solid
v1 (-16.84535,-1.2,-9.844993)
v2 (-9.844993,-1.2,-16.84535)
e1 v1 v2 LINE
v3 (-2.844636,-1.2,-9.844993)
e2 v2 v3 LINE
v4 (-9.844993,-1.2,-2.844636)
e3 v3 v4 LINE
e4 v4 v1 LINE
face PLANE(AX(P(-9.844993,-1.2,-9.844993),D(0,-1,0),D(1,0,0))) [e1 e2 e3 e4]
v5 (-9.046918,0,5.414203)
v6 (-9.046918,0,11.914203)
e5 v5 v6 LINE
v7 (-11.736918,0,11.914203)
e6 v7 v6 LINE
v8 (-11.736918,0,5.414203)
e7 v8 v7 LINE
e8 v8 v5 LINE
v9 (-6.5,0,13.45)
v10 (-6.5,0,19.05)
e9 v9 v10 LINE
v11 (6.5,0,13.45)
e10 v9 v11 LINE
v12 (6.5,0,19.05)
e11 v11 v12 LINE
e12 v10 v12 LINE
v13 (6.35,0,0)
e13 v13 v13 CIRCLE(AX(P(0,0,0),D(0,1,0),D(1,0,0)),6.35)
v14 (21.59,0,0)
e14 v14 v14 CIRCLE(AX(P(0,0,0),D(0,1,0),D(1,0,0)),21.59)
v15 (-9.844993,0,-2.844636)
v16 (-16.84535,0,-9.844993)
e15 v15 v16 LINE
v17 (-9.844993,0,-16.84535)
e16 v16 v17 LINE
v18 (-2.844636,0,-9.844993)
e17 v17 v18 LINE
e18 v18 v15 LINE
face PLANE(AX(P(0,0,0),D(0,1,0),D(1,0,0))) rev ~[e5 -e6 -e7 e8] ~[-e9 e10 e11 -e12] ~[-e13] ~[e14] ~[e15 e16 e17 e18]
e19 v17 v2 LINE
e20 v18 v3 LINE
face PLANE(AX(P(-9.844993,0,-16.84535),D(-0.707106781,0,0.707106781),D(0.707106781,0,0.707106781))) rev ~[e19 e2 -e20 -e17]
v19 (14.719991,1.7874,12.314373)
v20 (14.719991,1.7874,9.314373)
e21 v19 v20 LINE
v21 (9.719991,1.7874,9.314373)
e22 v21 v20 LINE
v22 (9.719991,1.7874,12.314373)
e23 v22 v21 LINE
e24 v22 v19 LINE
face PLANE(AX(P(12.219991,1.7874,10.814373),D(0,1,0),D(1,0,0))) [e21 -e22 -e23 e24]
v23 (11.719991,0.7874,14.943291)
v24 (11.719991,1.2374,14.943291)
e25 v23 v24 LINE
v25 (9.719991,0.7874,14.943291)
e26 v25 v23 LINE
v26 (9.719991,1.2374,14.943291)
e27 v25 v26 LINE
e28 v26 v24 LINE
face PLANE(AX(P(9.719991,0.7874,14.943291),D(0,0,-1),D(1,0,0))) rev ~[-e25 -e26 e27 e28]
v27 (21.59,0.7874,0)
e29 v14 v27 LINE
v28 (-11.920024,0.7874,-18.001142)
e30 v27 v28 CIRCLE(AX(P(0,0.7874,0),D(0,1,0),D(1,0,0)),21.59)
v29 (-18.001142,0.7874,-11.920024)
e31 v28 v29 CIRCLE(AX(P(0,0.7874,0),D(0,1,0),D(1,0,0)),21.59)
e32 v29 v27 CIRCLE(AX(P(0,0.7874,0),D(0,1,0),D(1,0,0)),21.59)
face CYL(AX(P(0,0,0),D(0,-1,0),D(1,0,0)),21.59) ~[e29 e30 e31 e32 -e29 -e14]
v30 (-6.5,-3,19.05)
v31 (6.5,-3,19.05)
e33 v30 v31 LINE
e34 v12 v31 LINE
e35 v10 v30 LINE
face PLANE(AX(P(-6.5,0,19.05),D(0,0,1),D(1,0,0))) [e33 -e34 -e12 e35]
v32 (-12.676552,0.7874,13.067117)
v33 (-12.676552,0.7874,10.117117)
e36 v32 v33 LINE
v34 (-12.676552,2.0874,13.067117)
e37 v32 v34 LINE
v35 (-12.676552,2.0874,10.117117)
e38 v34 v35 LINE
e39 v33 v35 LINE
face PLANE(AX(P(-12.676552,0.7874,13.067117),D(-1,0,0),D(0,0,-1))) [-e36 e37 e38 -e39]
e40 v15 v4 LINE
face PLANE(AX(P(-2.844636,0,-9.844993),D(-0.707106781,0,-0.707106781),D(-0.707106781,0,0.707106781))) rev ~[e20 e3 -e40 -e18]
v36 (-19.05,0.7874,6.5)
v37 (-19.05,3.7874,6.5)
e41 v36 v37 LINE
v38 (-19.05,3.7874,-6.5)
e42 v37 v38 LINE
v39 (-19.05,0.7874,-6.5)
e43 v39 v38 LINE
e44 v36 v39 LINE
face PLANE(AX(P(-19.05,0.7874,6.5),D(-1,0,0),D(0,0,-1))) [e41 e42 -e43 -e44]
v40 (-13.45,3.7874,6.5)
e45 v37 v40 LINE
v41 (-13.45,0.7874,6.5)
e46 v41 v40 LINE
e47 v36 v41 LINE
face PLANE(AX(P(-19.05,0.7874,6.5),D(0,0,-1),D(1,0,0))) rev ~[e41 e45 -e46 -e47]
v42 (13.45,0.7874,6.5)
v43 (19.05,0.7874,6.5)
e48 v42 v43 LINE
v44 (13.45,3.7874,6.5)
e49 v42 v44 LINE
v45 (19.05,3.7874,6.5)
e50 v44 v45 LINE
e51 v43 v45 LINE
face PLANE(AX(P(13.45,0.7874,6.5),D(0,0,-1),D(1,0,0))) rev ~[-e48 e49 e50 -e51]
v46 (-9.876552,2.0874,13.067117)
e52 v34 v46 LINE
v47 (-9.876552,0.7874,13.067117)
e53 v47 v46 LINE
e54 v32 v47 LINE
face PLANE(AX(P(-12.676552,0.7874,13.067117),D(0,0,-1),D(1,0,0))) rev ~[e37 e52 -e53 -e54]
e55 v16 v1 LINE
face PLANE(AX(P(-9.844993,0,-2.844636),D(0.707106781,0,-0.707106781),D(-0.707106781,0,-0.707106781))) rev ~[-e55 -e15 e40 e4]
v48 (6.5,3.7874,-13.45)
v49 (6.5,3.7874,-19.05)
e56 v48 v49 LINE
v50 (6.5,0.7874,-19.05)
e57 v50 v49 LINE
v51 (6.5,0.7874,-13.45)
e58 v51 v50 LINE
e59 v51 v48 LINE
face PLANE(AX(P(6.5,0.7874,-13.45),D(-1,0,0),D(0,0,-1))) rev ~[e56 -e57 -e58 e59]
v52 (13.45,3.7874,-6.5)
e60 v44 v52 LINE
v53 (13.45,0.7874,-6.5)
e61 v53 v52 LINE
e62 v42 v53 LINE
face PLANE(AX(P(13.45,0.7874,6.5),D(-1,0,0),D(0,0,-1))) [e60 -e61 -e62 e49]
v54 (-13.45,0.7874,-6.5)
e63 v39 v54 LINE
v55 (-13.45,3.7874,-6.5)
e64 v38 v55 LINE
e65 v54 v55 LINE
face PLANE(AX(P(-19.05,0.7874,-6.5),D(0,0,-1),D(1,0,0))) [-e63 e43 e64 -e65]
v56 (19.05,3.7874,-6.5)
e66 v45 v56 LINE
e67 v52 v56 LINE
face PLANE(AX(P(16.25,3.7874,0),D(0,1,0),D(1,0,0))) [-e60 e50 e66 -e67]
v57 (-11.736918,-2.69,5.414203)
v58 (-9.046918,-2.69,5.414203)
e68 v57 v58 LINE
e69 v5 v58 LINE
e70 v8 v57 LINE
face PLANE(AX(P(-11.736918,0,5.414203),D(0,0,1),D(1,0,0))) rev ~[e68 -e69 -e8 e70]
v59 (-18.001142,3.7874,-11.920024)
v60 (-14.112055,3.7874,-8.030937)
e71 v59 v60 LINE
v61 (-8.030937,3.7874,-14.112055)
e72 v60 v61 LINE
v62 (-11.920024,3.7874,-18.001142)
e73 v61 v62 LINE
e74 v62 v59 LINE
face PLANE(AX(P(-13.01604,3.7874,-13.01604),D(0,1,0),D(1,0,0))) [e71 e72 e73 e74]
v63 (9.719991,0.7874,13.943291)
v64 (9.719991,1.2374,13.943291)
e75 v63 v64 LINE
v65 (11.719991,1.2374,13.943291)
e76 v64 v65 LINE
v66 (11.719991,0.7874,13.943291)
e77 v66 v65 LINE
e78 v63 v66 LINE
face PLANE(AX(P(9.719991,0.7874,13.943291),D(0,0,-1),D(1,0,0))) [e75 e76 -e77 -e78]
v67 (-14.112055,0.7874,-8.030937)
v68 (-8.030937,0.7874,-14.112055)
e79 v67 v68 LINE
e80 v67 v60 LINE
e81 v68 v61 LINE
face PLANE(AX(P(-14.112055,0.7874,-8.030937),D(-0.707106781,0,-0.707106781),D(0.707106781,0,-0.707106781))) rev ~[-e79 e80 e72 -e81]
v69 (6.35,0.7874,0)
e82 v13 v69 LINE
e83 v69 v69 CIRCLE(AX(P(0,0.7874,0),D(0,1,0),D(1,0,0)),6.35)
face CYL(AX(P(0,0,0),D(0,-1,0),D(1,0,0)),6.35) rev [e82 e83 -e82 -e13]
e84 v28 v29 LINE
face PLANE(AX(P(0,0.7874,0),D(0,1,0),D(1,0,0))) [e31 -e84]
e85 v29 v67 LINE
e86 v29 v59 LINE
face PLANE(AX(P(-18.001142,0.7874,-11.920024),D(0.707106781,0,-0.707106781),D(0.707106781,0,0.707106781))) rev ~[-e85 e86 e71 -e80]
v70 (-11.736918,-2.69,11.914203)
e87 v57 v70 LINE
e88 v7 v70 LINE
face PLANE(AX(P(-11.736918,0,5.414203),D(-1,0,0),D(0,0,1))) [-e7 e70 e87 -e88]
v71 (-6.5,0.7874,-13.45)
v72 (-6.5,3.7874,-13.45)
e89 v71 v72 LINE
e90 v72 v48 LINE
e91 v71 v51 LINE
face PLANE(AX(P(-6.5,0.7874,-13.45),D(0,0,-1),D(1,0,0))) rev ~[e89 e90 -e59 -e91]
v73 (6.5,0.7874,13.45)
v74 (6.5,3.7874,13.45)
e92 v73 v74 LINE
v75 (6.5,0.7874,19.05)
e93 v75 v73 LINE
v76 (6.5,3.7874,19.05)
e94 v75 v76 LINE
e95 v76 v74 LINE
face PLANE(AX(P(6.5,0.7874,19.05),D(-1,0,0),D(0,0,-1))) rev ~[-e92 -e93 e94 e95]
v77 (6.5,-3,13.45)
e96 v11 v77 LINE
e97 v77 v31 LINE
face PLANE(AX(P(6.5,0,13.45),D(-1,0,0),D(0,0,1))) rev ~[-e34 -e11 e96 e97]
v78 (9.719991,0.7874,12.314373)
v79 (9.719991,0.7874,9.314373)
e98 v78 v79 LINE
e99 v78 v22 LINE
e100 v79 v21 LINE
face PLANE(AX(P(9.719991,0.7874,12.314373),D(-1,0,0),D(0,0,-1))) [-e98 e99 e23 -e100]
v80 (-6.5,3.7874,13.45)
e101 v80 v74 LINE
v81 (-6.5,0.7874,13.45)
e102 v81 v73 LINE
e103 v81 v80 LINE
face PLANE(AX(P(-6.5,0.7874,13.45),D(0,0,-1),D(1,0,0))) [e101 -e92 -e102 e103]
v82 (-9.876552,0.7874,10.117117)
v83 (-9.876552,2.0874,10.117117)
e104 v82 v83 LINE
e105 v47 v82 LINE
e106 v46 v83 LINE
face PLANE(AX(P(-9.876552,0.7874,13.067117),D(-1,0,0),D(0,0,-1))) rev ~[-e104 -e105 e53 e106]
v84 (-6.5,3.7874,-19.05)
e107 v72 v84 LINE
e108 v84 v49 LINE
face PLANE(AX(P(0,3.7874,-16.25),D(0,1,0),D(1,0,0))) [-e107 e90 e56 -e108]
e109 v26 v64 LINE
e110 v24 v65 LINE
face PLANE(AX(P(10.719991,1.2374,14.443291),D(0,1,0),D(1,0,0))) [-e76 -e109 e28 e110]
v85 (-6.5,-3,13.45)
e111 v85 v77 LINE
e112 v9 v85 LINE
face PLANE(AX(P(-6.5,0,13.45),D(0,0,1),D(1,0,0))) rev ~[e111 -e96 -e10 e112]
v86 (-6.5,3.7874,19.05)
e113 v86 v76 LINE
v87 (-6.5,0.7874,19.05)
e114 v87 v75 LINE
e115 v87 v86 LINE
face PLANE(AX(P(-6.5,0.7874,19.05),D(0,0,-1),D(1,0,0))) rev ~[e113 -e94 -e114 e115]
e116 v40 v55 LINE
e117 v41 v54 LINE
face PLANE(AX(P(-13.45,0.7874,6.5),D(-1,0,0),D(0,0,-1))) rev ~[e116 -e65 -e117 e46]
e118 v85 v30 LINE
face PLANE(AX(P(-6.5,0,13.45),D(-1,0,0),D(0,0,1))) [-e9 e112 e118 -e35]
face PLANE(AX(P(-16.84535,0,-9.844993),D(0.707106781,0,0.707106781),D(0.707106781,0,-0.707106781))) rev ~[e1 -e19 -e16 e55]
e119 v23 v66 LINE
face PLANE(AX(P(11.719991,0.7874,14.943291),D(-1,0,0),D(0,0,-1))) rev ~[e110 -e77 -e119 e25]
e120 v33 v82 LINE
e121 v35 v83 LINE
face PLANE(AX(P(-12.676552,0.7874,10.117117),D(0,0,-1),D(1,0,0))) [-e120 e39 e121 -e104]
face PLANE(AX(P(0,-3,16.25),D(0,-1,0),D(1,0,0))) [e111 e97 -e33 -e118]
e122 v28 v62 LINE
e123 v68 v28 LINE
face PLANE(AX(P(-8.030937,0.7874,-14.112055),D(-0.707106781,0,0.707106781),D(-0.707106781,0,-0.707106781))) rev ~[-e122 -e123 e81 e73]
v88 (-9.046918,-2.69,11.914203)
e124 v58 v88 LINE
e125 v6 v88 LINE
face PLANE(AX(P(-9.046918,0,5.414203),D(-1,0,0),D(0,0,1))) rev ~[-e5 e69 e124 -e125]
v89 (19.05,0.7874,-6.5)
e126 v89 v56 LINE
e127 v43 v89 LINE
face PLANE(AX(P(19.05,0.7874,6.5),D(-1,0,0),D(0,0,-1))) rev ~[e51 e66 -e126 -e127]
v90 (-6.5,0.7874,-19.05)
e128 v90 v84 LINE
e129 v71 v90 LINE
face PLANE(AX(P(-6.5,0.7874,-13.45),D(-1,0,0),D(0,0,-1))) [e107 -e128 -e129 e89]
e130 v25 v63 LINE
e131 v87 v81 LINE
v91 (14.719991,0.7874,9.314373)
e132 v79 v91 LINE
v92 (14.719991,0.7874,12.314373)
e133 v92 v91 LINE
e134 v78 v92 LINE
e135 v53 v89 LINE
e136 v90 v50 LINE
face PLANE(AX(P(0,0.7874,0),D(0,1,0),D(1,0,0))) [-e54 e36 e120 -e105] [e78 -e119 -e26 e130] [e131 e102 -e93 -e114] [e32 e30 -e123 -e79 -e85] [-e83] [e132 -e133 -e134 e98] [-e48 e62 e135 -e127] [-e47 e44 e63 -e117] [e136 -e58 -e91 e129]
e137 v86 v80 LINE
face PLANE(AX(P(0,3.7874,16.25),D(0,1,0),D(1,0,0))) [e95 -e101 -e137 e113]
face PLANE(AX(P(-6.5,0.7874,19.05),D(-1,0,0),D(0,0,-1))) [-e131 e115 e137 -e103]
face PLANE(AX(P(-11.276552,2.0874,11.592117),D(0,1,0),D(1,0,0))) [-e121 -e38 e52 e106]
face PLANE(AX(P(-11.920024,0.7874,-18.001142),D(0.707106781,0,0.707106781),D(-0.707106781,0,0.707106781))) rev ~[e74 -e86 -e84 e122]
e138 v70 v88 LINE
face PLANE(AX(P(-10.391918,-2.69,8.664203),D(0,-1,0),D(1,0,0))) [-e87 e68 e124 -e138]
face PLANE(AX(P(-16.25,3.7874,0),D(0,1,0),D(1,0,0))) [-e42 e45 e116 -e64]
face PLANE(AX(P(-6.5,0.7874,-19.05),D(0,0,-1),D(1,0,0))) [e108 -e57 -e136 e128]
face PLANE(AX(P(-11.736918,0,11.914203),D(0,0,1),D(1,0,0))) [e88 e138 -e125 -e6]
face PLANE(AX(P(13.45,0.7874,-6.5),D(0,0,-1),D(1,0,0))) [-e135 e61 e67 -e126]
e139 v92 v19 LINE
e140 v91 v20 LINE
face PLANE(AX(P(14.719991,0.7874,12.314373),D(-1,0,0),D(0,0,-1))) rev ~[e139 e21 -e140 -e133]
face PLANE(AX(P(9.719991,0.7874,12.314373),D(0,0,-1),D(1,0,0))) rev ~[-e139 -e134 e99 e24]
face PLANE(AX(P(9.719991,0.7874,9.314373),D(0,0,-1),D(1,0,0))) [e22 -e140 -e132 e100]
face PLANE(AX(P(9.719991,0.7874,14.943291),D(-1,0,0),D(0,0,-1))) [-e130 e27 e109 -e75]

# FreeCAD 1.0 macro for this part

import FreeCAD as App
import Part
import Sketcher
from FreeCAD import Vector
Q = App.Units.Quantity


def add_polygon(sketch, points):
    """Adds a closed chain of lines whose ends are joined by coincident constraints."""
    first, n = sketch.GeometryCount, len(points)
    for a, b in zip(points, points[1:] + points[:1]):
        sketch.addGeometry(Part.LineSegment(App.Vector(*a, 0), App.Vector(*b, 0)), False)
    for i in range(n):
        sketch.addConstraint(Sketcher.Constraint("Coincident", first + i, 2, first + (i + 1) % n, 1))

doc = App.newDocument("Part")
body = doc.addObject("PartDesign::Body", "Body")

# Sketch on XZ plane
sketch1 = doc.addObject("Sketcher::SketchObject", "Sketch")
body.addObject(sketch1)
sketch1.AttachmentSupport = (doc.XZ_Plane, [""])
sketch1.MapMode = "FlatFace"
sketch1.addGeometry([
    Part.Circle(Vector(0, 0, 0), Vector(0, 0, 1), 21.59),
    Part.Circle(Vector(0, 0, 0), Vector(0, 0, 1), 6.35),
], False)
sketch1.addConstraint([
    Sketcher.Constraint("Coincident", 0, 3, -1, 1),
    Sketcher.Constraint("Coincident", 1, 3, -1, 1),
    Sketcher.Constraint("Diameter", 1, Q("12.7 mm")),
    Sketcher.Constraint("Diameter", 0, Q("43.18 mm")),
])
pad1 = doc.addObject("PartDesign::Pad", "Pad")
body.addObject(pad1)
pad1.Profile = sketch1
pad1.Length = 0.7874
pad1.Reversed = True

# Sketch on XZ plane
sketch2 = doc.addObject("Sketcher::SketchObject", "Sketch001")
body.addObject(sketch2)
sketch2.AttachmentSupport = (doc.XZ_Plane, [""])
sketch2.MapMode = "FlatFace"
sketch2.AttachmentOffset = App.Placement(Vector(0, 0, -0.7874), App.Rotation())
add_polygon(sketch2, [(-19.05, -6.5), (-19.05, 6.5), (-13.45, 6.5), (-13.45, -6.5)])  # lines 0-3
add_polygon(sketch2, [(-6.5, -19.05), (-6.5, -13.45), (6.5, -13.45), (6.5, -19.05)])  # lines 4-7
add_polygon(sketch2, [(-6.5, 13.45), (-6.5, 19.05), (6.5, 19.05), (6.5, 13.45)])  # lines 8-11
add_polygon(sketch2, [(13.45, -6.5), (13.45, 6.5), (19.05, 6.5), (19.05, -6.5)])  # lines 12-15
sketch2.addConstraint([
    Sketcher.Constraint("Vertical", 0),
    Sketcher.Constraint("Horizontal", 1),
    Sketcher.Constraint("Vertical", 2),
    Sketcher.Constraint("Horizontal", 3),
    Sketcher.Constraint("Vertical", 4),
    Sketcher.Constraint("Horizontal", 5),
    Sketcher.Constraint("Vertical", 6),
    Sketcher.Constraint("Horizontal", 7),
    Sketcher.Constraint("Vertical", 8),
    Sketcher.Constraint("Horizontal", 9),
    Sketcher.Constraint("Vertical", 10),
    Sketcher.Constraint("Horizontal", 11),
    Sketcher.Constraint("Vertical", 12),
    Sketcher.Constraint("Horizontal", 13),
    Sketcher.Constraint("Vertical", 14),
    Sketcher.Constraint("Horizontal", 15),
    Sketcher.Constraint("Symmetric", 6, 2, 8, 2, -1, 1),
    Sketcher.Constraint("Symmetric", 4, 2, 10, 2, -1, 1),
    Sketcher.Constraint("Symmetric", 2, 2, 12, 2, -1, 1),
    Sketcher.Constraint("Symmetric", 0, 2, 14, 2, -1, 1),
    Sketcher.Constraint("Horizontal", 1, 2, 12, 2),
    Sketcher.Constraint("Vertical", 7, 2, 8, 2),
    Sketcher.Constraint("Equal", 11, 0),
    Sketcher.Constraint("Equal", 15, 4),
    Sketcher.Constraint("DistanceX", 5, 1, 5, 2, Q("13 mm")),
    Sketcher.Constraint("DistanceX", 1, 1, 1, 2, Q("5.6 mm")),
    Sketcher.Constraint("DistanceY", 4, 2, 8, 2, Q("32.5 mm")),
    Sketcher.Constraint("DistanceX", 0, 2, -1, 1, Q("19.05 mm")),
])
pad2 = doc.addObject("PartDesign::Pad", "Pad001")
body.addObject(pad2)
pad2.Profile = sketch2
pad2.Length = 3
pad2.Reversed = True

# Sketch on XZ plane
sketch3 = doc.addObject("Sketcher::SketchObject", "Sketch002")
body.addObject(sketch3)
sketch3.AttachmentSupport = (doc.XZ_Plane, [""])
sketch3.MapMode = "FlatFace"
add_polygon(sketch3, [(-6.5, 19.05), (-6.5, 13.45), (6.5, 13.45), (6.5, 19.05)])  # lines 0-3
sketch3.addConstraint([
    Sketcher.Constraint("Vertical", 0),
    Sketcher.Constraint("Horizontal", 1),
    Sketcher.Constraint("Vertical", 2),
    Sketcher.Constraint("Horizontal", 3),
    Sketcher.Constraint("DistanceX", 1, 1, 1, 2, Q("13 mm")),
    Sketcher.Constraint("DistanceY", 0, 2, 0, 1, Q("5.6 mm")),
    Sketcher.Constraint("DistanceX", 0, 2, -1, 1, Q("6.5 mm")),
    Sketcher.Constraint("DistanceY", -1, 1, 0, 2, Q("13.45 mm")),
])
pad3 = doc.addObject("PartDesign::Pad", "Pad002")
body.addObject(pad3)
pad3.Profile = sketch3
pad3.Length = 3

# Sketch on XZ plane
sketch4 = doc.addObject("Sketcher::SketchObject", "Sketch003")
body.addObject(sketch4)
sketch4.AttachmentSupport = (doc.XZ_Plane, [""])
sketch4.MapMode = "FlatFace"
sketch4.AttachmentOffset = App.Placement(Vector(0, 0, -0.7874), App.Rotation())
add_polygon(sketch4, [(-18.001142, -11.920024), (-14.112055, -8.030937), (-8.030937, -14.112055), (-11.920024, -18.001142)])  # lines 0-3
sketch4.addConstraint([
    Sketcher.Constraint("Perpendicular", 0, 1),
    Sketcher.Constraint("Perpendicular", 1, 2),
    Sketcher.Constraint("Perpendicular", 2, 3),
    Sketcher.Constraint("Angle", 0, Q("45 deg")),
    Sketcher.Constraint("Distance", 0, Q("5.5 mm")),
    Sketcher.Constraint("Distance", 1, Q("8.6 mm")),
    Sketcher.Constraint("DistanceX", 0, 2, -1, 1, Q("14.112055 mm")),
    Sketcher.Constraint("DistanceY", 0, 2, -1, 1, Q("8.030937 mm")),
])
pad4 = doc.addObject("PartDesign::Pad", "Pad003")
body.addObject(pad4)
pad4.Profile = sketch4
pad4.Length = 3
pad4.Reversed = True

# Sketch on XZ plane
sketch5 = doc.addObject("Sketcher::SketchObject", "Sketch004")
body.addObject(sketch5)
sketch5.AttachmentSupport = (doc.XZ_Plane, [""])
sketch5.MapMode = "FlatFace"
sketch5.AttachmentOffset = App.Placement(Vector(0, 0, -0.7874), App.Rotation())
add_polygon(sketch5, [(-12.676552, 10.117117), (-12.676552, 13.067117), (-9.876552, 13.067117), (-9.876552, 10.117117)])  # lines 0-3
sketch5.addConstraint([
    Sketcher.Constraint("Vertical", 0),
    Sketcher.Constraint("Horizontal", 1),
    Sketcher.Constraint("Vertical", 2),
    Sketcher.Constraint("Horizontal", 3),
    Sketcher.Constraint("DistanceX", 1, 1, 1, 2, Q("2.8 mm")),
    Sketcher.Constraint("DistanceY", 0, 1, 0, 2, Q("2.95 mm")),
    Sketcher.Constraint("DistanceX", 0, 2, -1, 1, Q("12.676552 mm")),
    Sketcher.Constraint("DistanceY", -1, 1, 0, 2, Q("13.067117 mm")),
])
pad5 = doc.addObject("PartDesign::Pad", "Pad004")
body.addObject(pad5)
pad5.Profile = sketch5
pad5.Length = 1.3
pad5.Reversed = True

# Sketch on XZ plane
sketch6 = doc.addObject("Sketcher::SketchObject", "Sketch005")
body.addObject(sketch6)
sketch6.AttachmentSupport = (doc.XZ_Plane, [""])
sketch6.MapMode = "FlatFace"
sketch6.AttachmentOffset = App.Placement(Vector(0, 0, -0.7874), App.Rotation())
add_polygon(sketch6, [(9.719991, 9.314373), (9.719991, 12.314373), (14.719991, 12.314373), (14.719991, 9.314373)])  # lines 0-3
sketch6.addConstraint([
    Sketcher.Constraint("Vertical", 0),
    Sketcher.Constraint("Horizontal", 1),
    Sketcher.Constraint("Vertical", 2),
    Sketcher.Constraint("Horizontal", 3),
    Sketcher.Constraint("DistanceX", 1, 1, 1, 2, Q("5 mm")),
    Sketcher.Constraint("DistanceY", 0, 1, 0, 2, Q("3 mm")),
    Sketcher.Constraint("DistanceX", -1, 1, 0, 2, Q("9.719991 mm")),
    Sketcher.Constraint("DistanceY", -1, 1, 0, 2, Q("12.314373 mm")),
])
pad6 = doc.addObject("PartDesign::Pad", "Pad005")
body.addObject(pad6)
pad6.Profile = sketch6
pad6.Length = 1
pad6.Reversed = True

# Sketch on XZ plane
sketch7 = doc.addObject("Sketcher::SketchObject", "Sketch006")
body.addObject(sketch7)
sketch7.AttachmentSupport = (doc.XZ_Plane, [""])
sketch7.MapMode = "FlatFace"
sketch7.AttachmentOffset = App.Placement(Vector(0, 0, -0.7874), App.Rotation())
add_polygon(sketch7, [(9.719991, 13.943291), (9.719991, 14.943291), (11.719991, 14.943291), (11.719991, 13.943291)])  # lines 0-3
sketch7.addConstraint([
    Sketcher.Constraint("Vertical", 0),
    Sketcher.Constraint("Horizontal", 1),
    Sketcher.Constraint("Vertical", 2),
    Sketcher.Constraint("Horizontal", 3),
    Sketcher.Constraint("DistanceX", 1, 1, 1, 2, Q("2 mm")),
    Sketcher.Constraint("DistanceY", 0, 1, 0, 2, Q("1 mm")),
    Sketcher.Constraint("DistanceX", -1, 1, 0, 2, Q("9.719991 mm")),
    Sketcher.Constraint("DistanceY", -1, 1, 0, 2, Q("14.943291 mm")),
])
pad7 = doc.addObject("PartDesign::Pad", "Pad006")
body.addObject(pad7)
pad7.Profile = sketch7
pad7.Length = 0.45
pad7.Reversed = True

# Sketch on XZ plane
sketch8 = doc.addObject("Sketcher::SketchObject", "Sketch007")
body.addObject(sketch8)
sketch8.AttachmentSupport = (doc.XZ_Plane, [""])
sketch8.MapMode = "FlatFace"
add_polygon(sketch8, [(-9.844993, -16.84535), (-2.844636, -9.844993), (-9.844993, -2.844636), (-16.84535, -9.844993)])  # lines 0-3
sketch8.addConstraint([
    Sketcher.Constraint("Perpendicular", 0, 1),
    Sketcher.Constraint("Perpendicular", 1, 2),
    Sketcher.Constraint("Perpendicular", 2, 3),
    Sketcher.Constraint("Horizontal", 0, 2, 2, 2),
    Sketcher.Constraint("Vertical", 1, 2, 3, 2),
    Sketcher.Constraint("Distance", 0, Q("9.9 mm")),
    Sketcher.Constraint("DistanceX", 2, 2, -1, 1, Q("16.84535 mm")),
    Sketcher.Constraint("DistanceY", 3, 2, -1, 1, Q("16.84535 mm")),
])
pad8 = doc.addObject("PartDesign::Pad", "Pad007")
body.addObject(pad8)
pad8.Profile = sketch8
pad8.Length = 1.2

# Sketch on XZ plane
sketch9 = doc.addObject("Sketcher::SketchObject", "Sketch008")
body.addObject(sketch9)
sketch9.AttachmentSupport = (doc.XZ_Plane, [""])
sketch9.MapMode = "FlatFace"
add_polygon(sketch9, [(-11.736918, 11.914203), (-11.736918, 5.414203), (-9.046918, 5.414203), (-9.046918, 11.914203)])  # lines 0-3
sketch9.addConstraint([
    Sketcher.Constraint("Vertical", 0),
    Sketcher.Constraint("Horizontal", 1),
    Sketcher.Constraint("Vertical", 2),
    Sketcher.Constraint("Horizontal", 3),
    Sketcher.Constraint("DistanceY", 0, 2, 0, 1, Q("6.5 mm")),
    Sketcher.Constraint("DistanceX", 1, 1, 1, 2, Q("2.69 mm")),
    Sketcher.Constraint("DistanceX", 0, 2, -1, 1, Q("11.736918 mm")),
    Sketcher.Constraint("DistanceY", -1, 1, 0, 2, Q("5.414203 mm")),
])
pad9 = doc.addObject("PartDesign::Pad", "Pad008")
body.addObject(pad9)
pad9.Profile = sketch9
pad9.Length = 2.69

doc.recompute()
